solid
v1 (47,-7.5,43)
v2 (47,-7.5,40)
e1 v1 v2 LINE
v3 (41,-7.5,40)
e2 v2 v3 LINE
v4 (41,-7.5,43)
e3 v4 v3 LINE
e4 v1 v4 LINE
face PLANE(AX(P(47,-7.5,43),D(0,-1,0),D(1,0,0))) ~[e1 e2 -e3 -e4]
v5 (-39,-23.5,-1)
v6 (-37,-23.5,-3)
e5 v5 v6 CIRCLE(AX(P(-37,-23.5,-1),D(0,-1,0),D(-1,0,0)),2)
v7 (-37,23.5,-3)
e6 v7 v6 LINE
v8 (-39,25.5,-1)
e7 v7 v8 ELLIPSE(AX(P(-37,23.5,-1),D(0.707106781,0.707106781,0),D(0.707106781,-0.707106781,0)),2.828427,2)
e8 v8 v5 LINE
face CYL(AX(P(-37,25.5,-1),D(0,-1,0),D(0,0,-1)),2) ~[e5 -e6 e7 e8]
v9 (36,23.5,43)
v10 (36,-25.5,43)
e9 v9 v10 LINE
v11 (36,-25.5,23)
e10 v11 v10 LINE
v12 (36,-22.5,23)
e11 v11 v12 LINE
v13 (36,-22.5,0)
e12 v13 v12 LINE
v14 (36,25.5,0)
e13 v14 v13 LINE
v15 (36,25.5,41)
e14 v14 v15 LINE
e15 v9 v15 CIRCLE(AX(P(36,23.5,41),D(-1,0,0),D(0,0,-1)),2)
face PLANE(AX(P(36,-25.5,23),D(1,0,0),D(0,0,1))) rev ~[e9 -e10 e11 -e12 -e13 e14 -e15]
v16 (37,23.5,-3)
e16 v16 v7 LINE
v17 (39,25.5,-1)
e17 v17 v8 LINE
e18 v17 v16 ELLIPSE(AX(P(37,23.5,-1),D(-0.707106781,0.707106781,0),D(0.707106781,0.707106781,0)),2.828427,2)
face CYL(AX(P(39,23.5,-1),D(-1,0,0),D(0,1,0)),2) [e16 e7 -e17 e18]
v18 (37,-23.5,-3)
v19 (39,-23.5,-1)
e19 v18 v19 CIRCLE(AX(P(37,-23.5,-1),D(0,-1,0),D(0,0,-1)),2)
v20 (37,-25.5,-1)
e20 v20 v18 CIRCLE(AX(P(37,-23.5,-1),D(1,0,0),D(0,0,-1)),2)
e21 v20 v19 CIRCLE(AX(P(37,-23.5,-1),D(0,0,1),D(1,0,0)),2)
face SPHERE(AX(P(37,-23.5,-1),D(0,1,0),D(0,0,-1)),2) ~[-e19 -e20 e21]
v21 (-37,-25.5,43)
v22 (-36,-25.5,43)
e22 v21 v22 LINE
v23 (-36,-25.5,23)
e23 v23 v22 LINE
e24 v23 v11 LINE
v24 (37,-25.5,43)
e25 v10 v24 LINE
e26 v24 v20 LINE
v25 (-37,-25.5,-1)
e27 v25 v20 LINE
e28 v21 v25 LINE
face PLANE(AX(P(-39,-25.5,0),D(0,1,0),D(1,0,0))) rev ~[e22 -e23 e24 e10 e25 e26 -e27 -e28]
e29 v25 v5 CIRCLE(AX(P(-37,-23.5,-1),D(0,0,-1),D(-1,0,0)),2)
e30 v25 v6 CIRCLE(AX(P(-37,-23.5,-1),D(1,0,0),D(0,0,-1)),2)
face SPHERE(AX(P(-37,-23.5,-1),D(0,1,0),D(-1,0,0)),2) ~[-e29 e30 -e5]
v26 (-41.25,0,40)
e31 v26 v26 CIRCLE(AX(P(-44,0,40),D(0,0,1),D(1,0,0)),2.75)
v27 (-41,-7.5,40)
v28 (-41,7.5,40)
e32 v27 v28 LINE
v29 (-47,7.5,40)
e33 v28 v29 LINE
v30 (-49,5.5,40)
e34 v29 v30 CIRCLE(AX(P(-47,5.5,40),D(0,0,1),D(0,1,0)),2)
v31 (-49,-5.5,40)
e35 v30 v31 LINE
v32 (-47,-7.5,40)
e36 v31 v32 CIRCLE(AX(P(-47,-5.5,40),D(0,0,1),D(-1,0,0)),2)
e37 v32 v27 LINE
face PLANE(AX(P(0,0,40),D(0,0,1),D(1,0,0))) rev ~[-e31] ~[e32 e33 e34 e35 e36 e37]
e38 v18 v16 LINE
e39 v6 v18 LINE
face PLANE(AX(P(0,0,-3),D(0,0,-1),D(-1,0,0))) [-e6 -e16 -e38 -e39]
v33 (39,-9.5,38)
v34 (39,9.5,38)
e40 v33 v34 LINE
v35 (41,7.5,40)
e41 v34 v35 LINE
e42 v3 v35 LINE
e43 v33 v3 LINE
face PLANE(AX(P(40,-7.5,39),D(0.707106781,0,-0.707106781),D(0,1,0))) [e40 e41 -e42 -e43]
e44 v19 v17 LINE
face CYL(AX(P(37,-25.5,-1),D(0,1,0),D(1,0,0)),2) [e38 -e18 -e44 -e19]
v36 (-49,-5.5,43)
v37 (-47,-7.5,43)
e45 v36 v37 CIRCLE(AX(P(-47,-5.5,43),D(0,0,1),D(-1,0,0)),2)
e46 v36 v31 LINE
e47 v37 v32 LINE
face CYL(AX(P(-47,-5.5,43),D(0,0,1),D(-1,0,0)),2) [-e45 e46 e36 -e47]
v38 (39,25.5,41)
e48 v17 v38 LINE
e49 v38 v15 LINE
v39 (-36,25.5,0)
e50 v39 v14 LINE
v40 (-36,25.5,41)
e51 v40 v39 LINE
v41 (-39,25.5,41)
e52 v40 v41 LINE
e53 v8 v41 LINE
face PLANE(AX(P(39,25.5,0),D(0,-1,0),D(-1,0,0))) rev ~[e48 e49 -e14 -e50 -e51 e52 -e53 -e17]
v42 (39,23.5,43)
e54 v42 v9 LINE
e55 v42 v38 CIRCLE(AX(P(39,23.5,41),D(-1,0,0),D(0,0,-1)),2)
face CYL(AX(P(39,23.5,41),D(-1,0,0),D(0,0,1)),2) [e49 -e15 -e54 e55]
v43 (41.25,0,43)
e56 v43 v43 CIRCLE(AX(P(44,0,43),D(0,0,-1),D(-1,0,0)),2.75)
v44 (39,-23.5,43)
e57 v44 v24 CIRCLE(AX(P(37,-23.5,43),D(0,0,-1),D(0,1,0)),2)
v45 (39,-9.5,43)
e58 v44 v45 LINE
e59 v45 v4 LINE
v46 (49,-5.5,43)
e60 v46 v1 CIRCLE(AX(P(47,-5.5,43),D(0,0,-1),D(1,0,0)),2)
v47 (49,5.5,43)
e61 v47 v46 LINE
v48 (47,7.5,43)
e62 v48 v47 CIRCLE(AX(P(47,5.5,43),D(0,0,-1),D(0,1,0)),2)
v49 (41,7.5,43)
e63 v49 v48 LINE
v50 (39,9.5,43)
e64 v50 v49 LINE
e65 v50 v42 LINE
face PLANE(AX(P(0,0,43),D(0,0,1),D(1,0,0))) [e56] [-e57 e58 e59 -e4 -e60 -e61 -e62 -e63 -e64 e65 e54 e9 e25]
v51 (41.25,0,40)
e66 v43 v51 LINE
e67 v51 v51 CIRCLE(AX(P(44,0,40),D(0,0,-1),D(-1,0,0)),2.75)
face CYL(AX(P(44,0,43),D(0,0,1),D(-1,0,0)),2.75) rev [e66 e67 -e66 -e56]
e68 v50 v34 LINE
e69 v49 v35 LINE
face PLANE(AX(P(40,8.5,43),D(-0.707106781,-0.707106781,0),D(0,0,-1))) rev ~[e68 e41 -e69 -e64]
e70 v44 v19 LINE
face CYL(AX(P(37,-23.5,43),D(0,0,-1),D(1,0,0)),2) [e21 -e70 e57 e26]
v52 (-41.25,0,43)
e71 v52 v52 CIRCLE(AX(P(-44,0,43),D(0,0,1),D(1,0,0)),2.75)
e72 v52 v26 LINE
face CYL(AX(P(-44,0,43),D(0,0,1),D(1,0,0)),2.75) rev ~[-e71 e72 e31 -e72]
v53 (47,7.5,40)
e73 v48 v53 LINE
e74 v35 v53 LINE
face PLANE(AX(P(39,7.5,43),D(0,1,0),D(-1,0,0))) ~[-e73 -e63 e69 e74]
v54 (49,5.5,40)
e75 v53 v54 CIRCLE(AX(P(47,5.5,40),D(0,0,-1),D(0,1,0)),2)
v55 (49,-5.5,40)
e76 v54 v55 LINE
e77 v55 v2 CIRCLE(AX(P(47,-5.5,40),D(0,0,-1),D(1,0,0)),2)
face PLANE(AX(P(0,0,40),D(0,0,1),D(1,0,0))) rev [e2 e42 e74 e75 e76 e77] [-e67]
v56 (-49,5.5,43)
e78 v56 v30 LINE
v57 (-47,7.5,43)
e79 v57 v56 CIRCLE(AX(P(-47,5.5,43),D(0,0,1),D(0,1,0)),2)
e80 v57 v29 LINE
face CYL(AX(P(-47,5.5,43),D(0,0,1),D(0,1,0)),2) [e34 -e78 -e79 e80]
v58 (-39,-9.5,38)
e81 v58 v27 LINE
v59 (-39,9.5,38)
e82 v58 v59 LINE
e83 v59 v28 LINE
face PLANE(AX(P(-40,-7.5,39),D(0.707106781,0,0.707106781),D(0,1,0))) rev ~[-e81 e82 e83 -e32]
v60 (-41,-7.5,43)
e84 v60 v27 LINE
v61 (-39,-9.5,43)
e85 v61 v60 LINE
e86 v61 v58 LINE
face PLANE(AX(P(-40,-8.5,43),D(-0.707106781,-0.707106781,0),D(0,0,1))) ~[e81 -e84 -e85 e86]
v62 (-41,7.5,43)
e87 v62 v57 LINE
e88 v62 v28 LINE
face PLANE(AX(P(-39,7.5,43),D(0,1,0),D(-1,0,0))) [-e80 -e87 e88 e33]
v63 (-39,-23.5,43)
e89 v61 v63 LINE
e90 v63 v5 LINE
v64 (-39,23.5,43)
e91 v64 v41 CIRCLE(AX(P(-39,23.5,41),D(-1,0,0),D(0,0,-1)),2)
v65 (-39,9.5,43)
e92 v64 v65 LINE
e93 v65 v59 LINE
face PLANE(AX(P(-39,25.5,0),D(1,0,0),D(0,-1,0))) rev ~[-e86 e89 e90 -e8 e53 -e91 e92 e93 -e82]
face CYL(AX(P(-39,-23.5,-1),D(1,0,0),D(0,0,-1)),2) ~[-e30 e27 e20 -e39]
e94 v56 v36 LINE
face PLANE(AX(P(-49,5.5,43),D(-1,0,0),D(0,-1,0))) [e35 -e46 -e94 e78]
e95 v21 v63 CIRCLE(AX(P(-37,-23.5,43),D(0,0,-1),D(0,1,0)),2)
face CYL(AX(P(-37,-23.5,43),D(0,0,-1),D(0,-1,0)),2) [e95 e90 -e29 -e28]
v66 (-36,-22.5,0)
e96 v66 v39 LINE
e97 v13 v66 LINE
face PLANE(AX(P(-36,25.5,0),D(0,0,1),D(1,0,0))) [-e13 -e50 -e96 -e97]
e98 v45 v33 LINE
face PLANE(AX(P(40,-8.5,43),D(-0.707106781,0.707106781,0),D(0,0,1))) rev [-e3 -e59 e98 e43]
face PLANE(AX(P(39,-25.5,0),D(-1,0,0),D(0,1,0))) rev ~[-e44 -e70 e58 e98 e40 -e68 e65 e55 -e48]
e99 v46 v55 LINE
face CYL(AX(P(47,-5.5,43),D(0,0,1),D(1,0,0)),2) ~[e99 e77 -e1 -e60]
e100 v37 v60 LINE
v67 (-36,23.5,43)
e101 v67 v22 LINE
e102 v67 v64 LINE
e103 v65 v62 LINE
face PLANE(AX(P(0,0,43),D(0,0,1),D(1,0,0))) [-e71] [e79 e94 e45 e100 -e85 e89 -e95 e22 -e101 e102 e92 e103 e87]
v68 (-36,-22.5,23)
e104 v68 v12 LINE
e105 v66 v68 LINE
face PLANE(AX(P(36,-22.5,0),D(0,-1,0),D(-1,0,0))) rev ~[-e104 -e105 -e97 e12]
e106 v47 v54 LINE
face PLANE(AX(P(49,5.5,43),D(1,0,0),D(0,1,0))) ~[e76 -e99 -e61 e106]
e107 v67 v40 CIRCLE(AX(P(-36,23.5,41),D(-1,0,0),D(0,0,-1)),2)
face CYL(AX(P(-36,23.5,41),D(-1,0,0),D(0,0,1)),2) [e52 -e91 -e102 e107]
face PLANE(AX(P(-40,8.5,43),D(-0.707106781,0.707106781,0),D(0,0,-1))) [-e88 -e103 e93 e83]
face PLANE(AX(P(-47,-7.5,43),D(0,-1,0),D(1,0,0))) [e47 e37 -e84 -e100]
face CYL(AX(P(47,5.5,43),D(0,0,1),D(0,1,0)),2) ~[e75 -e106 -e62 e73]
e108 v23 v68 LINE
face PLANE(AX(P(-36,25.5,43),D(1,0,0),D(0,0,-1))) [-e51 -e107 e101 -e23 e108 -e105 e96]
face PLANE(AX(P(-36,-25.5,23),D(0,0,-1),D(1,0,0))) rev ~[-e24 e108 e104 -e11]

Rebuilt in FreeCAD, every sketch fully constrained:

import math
import FreeCAD as App
import Part
import Sketcher

V = App.Vector


def edges_at(feature, points):
    """Names of the edges that pass closest to the given points."""
    edges = feature.Shape.Edges
    near = lambda p: min(range(len(edges)), key=lambda i: edges[i].distToShape(Part.Vertex(*p))[0])
    return sorted({f"Edge{near(p) + 1}" for p in points})

doc = App.newDocument("Part")
params = doc.addObject("Spreadsheet::Sheet", "Params")
for row, (alias, value) in enumerate([
    ("sketch1_width", "72 mm"),
    ("sketch1_height", "45 mm"),
    ("pad1_length", "43 mm"),
    ("sketch2_width", "78 mm"),
    ("sketch2_height", "51 mm"),
    ("pad2_length", "3 mm"),
    ("sketch3_width", "72 mm"),
    ("sketch3_height", "43 mm"),
    ("pocket1_length", "3 mm"),
    ("sketch4_radius", "2 mm"),
    ("sketch4_diameter", "5.5 mm"),
    ("sketch4_height", "15 mm"),
    ("pad3_length", "3 mm"),
    ("chamfer_size", "2 mm"),
    ("fillet_radius", "2 mm"),
    ("sketch5_height", "20 mm"),
    ("sketch5_width", "72 mm"),
    ("pocket2_length", "3 mm"),
], start=1):
    params.set(f"A{row}", alias)
    params.set(f"B{row}", "=" + value)
    params.setAlias(f"B{row}", alias)

body = doc.addObject("PartDesign::Body", "Body")

# Sketch on XY plane
sketch1 = body.newObject("Sketcher::SketchObject", "Sketch")
sketch1.AttachmentSupport = (doc.getObject("XY_Plane"), [""])
sketch1.MapMode = "FlatFace"
sketch1.addGeometry([
    Part.LineSegment(V(39, -26, 0), V(39, 26, 0)),  # 0
    Part.LineSegment(V(39, 26, 0), V(-39, 26, 0)),  # 1
    Part.LineSegment(V(-39, 26, 0), V(-39, -26, 0)),  # 2
    Part.LineSegment(V(-39, -26, 0), V(39, -26, 0)),  # 3
    Part.LineSegment(V(-36, -22, 0), V(-36, 22, 0)),  # 4
    Part.LineSegment(V(-36, 22, 0), V(36, 22, 0)),  # 5
    Part.LineSegment(V(36, 22, 0), V(36, -22, 0)),  # 6
    Part.LineSegment(V(36, -22, 0), V(-36, -22, 0)),  # 7
], False)
sketch1.addConstraint([
    Sketcher.Constraint("Coincident", 0, 2, 1, 1),
    Sketcher.Constraint("Coincident", 1, 2, 2, 1),
    Sketcher.Constraint("Coincident", 2, 2, 3, 1),
    Sketcher.Constraint("Coincident", 3, 2, 0, 1),
    Sketcher.Constraint("Coincident", 4, 2, 5, 1),
    Sketcher.Constraint("Coincident", 5, 2, 6, 1),
    Sketcher.Constraint("Coincident", 6, 2, 7, 1),
    Sketcher.Constraint("Coincident", 7, 2, 4, 1),
    Sketcher.Constraint("Vertical", 0),
    Sketcher.Constraint("Horizontal", 1),
    Sketcher.Constraint("Vertical", 2),
    Sketcher.Constraint("Horizontal", 3),
    Sketcher.Constraint("Vertical", 4),
    Sketcher.Constraint("Horizontal", 5),
    Sketcher.Constraint("Vertical", 6),
    Sketcher.Constraint("Horizontal", 7),
    Sketcher.Constraint("Symmetric", 0, 2, 2, 2, -1, 1),
    Sketcher.Constraint("Symmetric", 4, 2, 6, 2, -1, 1),
    Sketcher.Constraint("DistanceX", 5, 1, 5, 2, 72.0),
    Sketcher.Constraint("DistanceY", 4, 1, 4, 2, 45.0),
    Sketcher.Constraint("DistanceX", 1, 2, 4, 2, 3.0),
    Sketcher.Constraint("DistanceY", 4, 2, 1, 2, 3.0),
])
sketch1.setExpression("Constraints[18]", "Params.sketch1_width")
sketch1.setExpression("Constraints[19]", "Params.sketch1_height")
pad1 = body.newObject("PartDesign::Pad", "Pad")
pad1.Profile = sketch1
pad1.setExpression("Length", "Params.pad1_length")

# Sketch on XY plane
sketch2 = body.newObject("Sketcher::SketchObject", "Sketch001")
sketch2.AttachmentSupport = (doc.getObject("XY_Plane"), [""])
sketch2.MapMode = "FlatFace"
sketch2.addGeometry([
    Part.LineSegment(V(-39, 26, 0), V(39, 26, 0)),
    Part.LineSegment(V(39, 26, 0), V(39, -26, 0)),
    Part.LineSegment(V(39, -26, 0), V(-39, -26, 0)),
    Part.LineSegment(V(-39, -26, 0), V(-39, 26, 0)),
], False)
sketch2.addConstraint([
    Sketcher.Constraint("Coincident", 0, 2, 1, 1),
    Sketcher.Constraint("Coincident", 1, 2, 2, 1),
    Sketcher.Constraint("Coincident", 2, 2, 3, 1),
    Sketcher.Constraint("Coincident", 3, 2, 0, 1),
    Sketcher.Constraint("Horizontal", 0),
    Sketcher.Constraint("Vertical", 1),
    Sketcher.Constraint("Horizontal", 2),
    Sketcher.Constraint("Vertical", 3),
    Sketcher.Constraint("Symmetric", 0, 2, 2, 2, -1, 1),
    Sketcher.Constraint("DistanceX", 0, 1, 0, 2, 78.0),
    Sketcher.Constraint("DistanceY", 1, 2, 1, 1, 51.0),
])
sketch2.setExpression("Constraints[9]", "Params.sketch2_width")
sketch2.setExpression("Constraints[10]", "Params.sketch2_height")
pad2 = body.newObject("PartDesign::Pad", "Pad001")
pad2.Profile = sketch2
pad2.setExpression("Length", "Params.pad2_length")
pad2.Reversed = True

# Sketch on XZ plane
sketch3 = body.newObject("Sketcher::SketchObject", "Sketch002")
sketch3.AttachmentSupport = (doc.getObject("XZ_Plane"), [""])
sketch3.MapMode = "FlatFace"
sketch3.AttachmentOffset = App.Placement(V(0, 0, -25.5), App.Rotation())
sketch3.addGeometry([
    Part.LineSegment(V(36, 0, 0), V(-36, 0, 0)),
    Part.LineSegment(V(-36, 0, 0), V(-36, 43, 0)),
    Part.LineSegment(V(-36, 43, 0), V(36, 43, 0)),
    Part.LineSegment(V(36, 43, 0), V(36, 0, 0)),
], False)
sketch3.addConstraint([
    Sketcher.Constraint("Coincident", 0, 2, 1, 1),
    Sketcher.Constraint("Coincident", 1, 2, 2, 1),
    Sketcher.Constraint("Coincident", 2, 2, 3, 1),
    Sketcher.Constraint("Coincident", 3, 2, 0, 1),
    Sketcher.Constraint("Horizontal", 0),
    Sketcher.Constraint("Vertical", 1),
    Sketcher.Constraint("Horizontal", 2),
    Sketcher.Constraint("Vertical", 3),
    Sketcher.Constraint("Symmetric", 0, 2, 3, 2, -1, 1),
    Sketcher.Constraint("DistanceX", 0, 2, 0, 1, 72.0),
    Sketcher.Constraint("DistanceY", 1, 1, 1, 2, 43.0),
])
sketch3.setExpression("Constraints[9]", "Params.sketch3_width")
sketch3.setExpression("Constraints[10]", "Params.sketch3_height")
pocket1 = body.newObject("PartDesign::Pocket", "Pocket")
pocket1.Profile = sketch3
pocket1.setExpression("Length", "Params.pocket1_length")
pocket1.Reversed = True

# Sketch on XY plane
sketch4 = body.newObject("Sketcher::SketchObject", "Sketch003")
sketch4.AttachmentSupport = (doc.getObject("XY_Plane"), [""])
sketch4.MapMode = "FlatFace"
sketch4.AttachmentOffset = App.Placement(V(0, 0, 43), App.Rotation())
sketch4.addGeometry([
    Part.LineSegment(V(-47, -7.5, 0), V(-39, -7.5, 0)),  # 0
    Part.LineSegment(V(-39, -7.5, 0), V(-39, 7.5, 0)),  # 1
    Part.LineSegment(V(-39, 7.5, 0), V(-47, 7.5, 0)),  # 2
    Part.ArcOfCircle(Part.Circle(V(-47, 5.5, 0), V(0, 0, 1), 2), math.radians(90), math.radians(180)),  # 3
    Part.LineSegment(V(-49, 5.5, 0), V(-49, -5.5, 0)),  # 4
    Part.ArcOfCircle(Part.Circle(V(-47, -5.5, 0), V(0, 0, 1), 2), math.radians(180), math.radians(270)),  # 5
    Part.Circle(V(-44, 0, 0), V(0, 0, 1), 2.8),  # 6
], False)
sketch4.addConstraint([
    Sketcher.Constraint("Coincident", 0, 2, 1, 1),
    Sketcher.Constraint("Coincident", 1, 2, 2, 1),
    Sketcher.Constraint("Tangent", 2, 2, 3, 1),
    Sketcher.Constraint("Tangent", 3, 2, 4, 1),
    Sketcher.Constraint("Tangent", 4, 2, 5, 1),
    Sketcher.Constraint("Tangent", 5, 2, 0, 1),
    Sketcher.Constraint("Horizontal", 0),
    Sketcher.Constraint("Vertical", 1),
    Sketcher.Constraint("Horizontal", 2),
    Sketcher.Constraint("Vertical", 4),
    Sketcher.Constraint("Equal", 3, 5),
    Sketcher.Constraint("PointOnObject", 6, 3, -1),
    Sketcher.Constraint("Radius", 3, 2.0),
    Sketcher.Constraint("Diameter", 6, 5.5),
    Sketcher.Constraint("DistanceY", 1, 1, 1, 2, 15.0),
    Sketcher.Constraint("DistanceX", 6, 3, 0, 2, 5.0),
    Sketcher.Constraint("DistanceX", 3, 2, 6, 3, 5.0),
    Sketcher.Constraint("DistanceY", -1, 1, 3, 3, 5.5),
    Sketcher.Constraint("DistanceX", 3, 3, -1, 1, 47.0),
])
sketch4.setExpression("Constraints[12]", "Params.sketch4_radius")
sketch4.setExpression("Constraints[13]", "Params.sketch4_diameter")
sketch4.setExpression("Constraints[14]", "Params.sketch4_height")
pad3 = body.newObject("PartDesign::Pad", "Pad002")
pad3.Profile = sketch4
pad3.setExpression("Length", "Params.pad3_length")
pad3.Reversed = True
doc.recompute()

mirrored = body.newObject("PartDesign::Mirrored", "Mirrored")
mirrored.Originals = [pad3]
mirrored.MirrorPlane = (doc.getObject("YZ_Plane"), [""])
body.Tip = mirrored
doc.recompute()

chamfer = body.newObject("PartDesign::Chamfer", "Chamfer")
chamfer.Base = (mirrored, edges_at(mirrored, [
    (-39, 0, 40),
    (-39, 7.5, 41.5),
    (-39, -7.5, 41.5),
    (39, 0, 40),
    (39, -7.5, 41.5),
    (39, 7.5, 41.5),
]))
chamfer.setExpression("Size", "Params.chamfer_size")
doc.recompute()

fillet = body.newObject("PartDesign::Fillet", "Fillet")
fillet.Base = (chamfer, edges_at(chamfer, [
    (39, 0, -3),
    (-39, 0, -3),
    (-39, -25.5, 20),
    (0, -25.5, -3),
    (39, -25.5, 20),
    (0, 25.5, -3),
    (-37.5, 25.5, 43),
    (37.5, 25.5, 43),
]))
fillet.setExpression("Radius", "Params.fillet_radius")

# Sketch on XZ plane
sketch5 = body.newObject("Sketcher::SketchObject", "Sketch004")
sketch5.AttachmentSupport = (doc.getObject("XZ_Plane"), [""])
sketch5.MapMode = "FlatFace"
sketch5.AttachmentOffset = App.Placement(V(0, 0, 25.5), App.Rotation())
sketch5.addGeometry([
    Part.LineSegment(V(36, 23, 0), V(36, 43, 0)),
    Part.LineSegment(V(36, 43, 0), V(-36, 43, 0)),
    Part.LineSegment(V(-36, 43, 0), V(-36, 23, 0)),
    Part.LineSegment(V(-36, 23, 0), V(36, 23, 0)),
], False)
sketch5.addConstraint([
    Sketcher.Constraint("Coincident", 0, 2, 1, 1),
    Sketcher.Constraint("Coincident", 1, 2, 2, 1),
    Sketcher.Constraint("Coincident", 2, 2, 3, 1),
    Sketcher.Constraint("Coincident", 3, 2, 0, 1),
    Sketcher.Constraint("Vertical", 0),
    Sketcher.Constraint("Horizontal", 1),
    Sketcher.Constraint("Vertical", 2),
    Sketcher.Constraint("Horizontal", 3),
    Sketcher.Constraint("DistanceY", 0, 1, 0, 2, 20.0),
    Sketcher.Constraint("DistanceX", 1, 2, 1, 1, 72.0),
    Sketcher.Constraint("DistanceX", -1, 1, 0, 2, 36.0),
    Sketcher.Constraint("DistanceY", -1, 1, 0, 2, 43.0),
])
sketch5.setExpression("Constraints[8]", "Params.sketch5_height")
sketch5.setExpression("Constraints[9]", "Params.sketch5_width")
pocket2 = body.newObject("PartDesign::Pocket", "Pocket001")
pocket2.Profile = sketch5
pocket2.setExpression("Length", "Params.pocket2_length")

doc.recompute()
